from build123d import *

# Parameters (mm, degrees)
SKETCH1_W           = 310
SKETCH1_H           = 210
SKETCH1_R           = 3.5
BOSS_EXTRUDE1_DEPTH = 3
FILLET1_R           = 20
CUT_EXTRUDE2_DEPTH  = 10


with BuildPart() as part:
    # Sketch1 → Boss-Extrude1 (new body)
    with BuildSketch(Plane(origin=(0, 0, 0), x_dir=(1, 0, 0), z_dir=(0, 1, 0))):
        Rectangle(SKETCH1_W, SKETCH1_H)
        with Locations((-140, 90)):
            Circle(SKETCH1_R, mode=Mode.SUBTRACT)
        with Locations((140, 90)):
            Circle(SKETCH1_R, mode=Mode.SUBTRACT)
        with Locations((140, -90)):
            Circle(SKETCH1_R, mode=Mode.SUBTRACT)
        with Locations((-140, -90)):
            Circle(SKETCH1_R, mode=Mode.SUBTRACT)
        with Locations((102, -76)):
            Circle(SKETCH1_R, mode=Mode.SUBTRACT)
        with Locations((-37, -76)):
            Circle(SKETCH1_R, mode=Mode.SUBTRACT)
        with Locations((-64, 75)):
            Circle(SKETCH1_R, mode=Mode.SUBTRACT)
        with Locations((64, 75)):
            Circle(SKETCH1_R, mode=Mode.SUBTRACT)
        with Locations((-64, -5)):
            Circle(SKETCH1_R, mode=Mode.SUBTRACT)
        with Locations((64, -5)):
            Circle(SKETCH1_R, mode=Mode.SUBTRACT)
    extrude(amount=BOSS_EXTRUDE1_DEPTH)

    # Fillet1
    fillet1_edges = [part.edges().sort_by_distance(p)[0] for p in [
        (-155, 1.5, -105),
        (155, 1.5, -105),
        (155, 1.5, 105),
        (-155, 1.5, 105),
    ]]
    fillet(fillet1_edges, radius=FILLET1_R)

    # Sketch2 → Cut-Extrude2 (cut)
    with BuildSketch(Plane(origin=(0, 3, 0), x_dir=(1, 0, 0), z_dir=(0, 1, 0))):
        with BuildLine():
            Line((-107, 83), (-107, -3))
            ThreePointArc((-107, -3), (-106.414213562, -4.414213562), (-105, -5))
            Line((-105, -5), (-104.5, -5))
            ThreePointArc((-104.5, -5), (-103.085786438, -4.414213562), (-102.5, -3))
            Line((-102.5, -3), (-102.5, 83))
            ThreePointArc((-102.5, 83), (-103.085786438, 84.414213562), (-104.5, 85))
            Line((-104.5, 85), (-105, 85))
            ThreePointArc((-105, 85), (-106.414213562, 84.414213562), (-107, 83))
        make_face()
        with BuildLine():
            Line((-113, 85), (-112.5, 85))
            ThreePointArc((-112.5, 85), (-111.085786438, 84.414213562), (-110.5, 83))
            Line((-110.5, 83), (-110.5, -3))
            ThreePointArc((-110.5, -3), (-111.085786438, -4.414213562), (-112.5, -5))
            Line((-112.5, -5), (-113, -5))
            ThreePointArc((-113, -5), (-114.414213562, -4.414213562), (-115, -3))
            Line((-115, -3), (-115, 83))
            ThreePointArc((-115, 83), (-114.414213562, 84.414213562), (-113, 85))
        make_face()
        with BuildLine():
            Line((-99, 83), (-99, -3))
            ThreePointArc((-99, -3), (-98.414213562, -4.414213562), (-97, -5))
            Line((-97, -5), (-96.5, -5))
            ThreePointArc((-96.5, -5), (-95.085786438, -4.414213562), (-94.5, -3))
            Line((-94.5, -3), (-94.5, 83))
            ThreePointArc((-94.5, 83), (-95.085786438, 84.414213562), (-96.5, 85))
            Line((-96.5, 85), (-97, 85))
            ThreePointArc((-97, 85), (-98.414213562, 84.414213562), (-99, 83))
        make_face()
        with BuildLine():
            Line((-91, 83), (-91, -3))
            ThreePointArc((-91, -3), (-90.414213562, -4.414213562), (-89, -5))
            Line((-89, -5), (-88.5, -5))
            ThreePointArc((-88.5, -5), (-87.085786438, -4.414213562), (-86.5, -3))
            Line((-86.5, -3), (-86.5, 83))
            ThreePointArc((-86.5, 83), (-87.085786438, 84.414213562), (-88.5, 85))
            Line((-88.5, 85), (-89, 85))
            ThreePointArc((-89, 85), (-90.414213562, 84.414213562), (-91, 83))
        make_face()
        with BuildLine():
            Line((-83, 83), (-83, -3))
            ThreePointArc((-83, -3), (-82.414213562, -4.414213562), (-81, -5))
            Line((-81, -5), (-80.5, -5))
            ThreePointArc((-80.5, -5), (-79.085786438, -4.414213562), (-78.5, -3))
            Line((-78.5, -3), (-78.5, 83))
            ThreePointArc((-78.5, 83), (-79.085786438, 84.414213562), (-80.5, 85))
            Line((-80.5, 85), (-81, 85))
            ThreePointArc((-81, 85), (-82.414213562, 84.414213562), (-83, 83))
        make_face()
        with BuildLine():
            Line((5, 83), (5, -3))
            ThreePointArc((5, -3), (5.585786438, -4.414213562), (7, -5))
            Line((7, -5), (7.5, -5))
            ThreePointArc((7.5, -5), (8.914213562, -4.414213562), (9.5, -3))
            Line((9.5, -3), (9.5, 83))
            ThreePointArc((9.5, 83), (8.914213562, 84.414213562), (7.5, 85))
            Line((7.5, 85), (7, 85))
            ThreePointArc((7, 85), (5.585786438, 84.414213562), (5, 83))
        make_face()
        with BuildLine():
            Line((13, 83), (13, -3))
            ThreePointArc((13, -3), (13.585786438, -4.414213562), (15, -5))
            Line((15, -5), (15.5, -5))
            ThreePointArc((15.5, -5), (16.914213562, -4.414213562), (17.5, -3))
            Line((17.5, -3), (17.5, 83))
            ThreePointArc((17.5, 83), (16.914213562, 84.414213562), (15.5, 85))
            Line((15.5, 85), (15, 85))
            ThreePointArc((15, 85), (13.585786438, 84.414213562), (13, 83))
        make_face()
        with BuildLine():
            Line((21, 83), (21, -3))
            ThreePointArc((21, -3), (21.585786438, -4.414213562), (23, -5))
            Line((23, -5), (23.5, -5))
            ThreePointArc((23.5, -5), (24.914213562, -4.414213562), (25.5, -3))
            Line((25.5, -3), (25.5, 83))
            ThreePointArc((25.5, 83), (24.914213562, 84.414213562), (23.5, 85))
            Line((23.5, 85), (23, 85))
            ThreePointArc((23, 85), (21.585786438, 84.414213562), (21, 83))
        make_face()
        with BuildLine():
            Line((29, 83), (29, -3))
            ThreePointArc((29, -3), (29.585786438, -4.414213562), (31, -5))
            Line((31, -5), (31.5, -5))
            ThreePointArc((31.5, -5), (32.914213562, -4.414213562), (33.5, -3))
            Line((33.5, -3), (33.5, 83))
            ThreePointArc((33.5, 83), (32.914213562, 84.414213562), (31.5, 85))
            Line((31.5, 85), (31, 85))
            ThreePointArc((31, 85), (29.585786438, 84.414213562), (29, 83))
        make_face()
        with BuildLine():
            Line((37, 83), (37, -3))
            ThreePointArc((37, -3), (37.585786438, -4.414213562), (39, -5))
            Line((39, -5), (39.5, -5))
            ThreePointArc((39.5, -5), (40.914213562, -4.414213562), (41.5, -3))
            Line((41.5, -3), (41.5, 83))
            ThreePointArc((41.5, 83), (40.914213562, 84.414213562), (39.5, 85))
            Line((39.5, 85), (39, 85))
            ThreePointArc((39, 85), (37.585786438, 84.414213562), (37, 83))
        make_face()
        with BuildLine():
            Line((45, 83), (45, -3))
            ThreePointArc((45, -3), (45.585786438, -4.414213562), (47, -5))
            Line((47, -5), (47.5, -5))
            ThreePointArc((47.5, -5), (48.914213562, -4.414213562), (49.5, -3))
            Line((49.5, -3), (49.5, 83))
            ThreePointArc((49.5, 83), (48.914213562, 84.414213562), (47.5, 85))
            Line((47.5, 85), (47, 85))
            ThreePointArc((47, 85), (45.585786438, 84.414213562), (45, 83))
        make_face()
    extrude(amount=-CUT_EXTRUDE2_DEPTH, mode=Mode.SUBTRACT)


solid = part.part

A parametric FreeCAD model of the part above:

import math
import FreeCAD as App
import Part
import Sketcher
from FreeCAD import Vector
Q = App.Units.Quantity


def edges_at(feature, points):
    """Names of the edges that pass closest to the given points."""
    edges = feature.Shape.Edges
    near = lambda p: min(range(len(edges)), key=lambda i: edges[i].distToShape(Part.Vertex(*p))[0])
    return sorted({f"Edge{near(p) + 1}" for p in points})


def add_polygon(sketch, points):
    """Adds a closed chain of lines whose ends are joined by coincident constraints."""
    first, n = sketch.GeometryCount, len(points)
    for a, b in zip(points, points[1:] + points[:1]):
        sketch.addGeometry(Part.LineSegment(App.Vector(*a, 0), App.Vector(*b, 0)), False)
    for i in range(n):
        sketch.addConstraint(Sketcher.Constraint("Coincident", first + i, 2, first + (i + 1) % n, 1))

doc = App.newDocument("Part")
body = doc.addObject("PartDesign::Body", "Body")

# Sketch on XZ plane
sketch1 = doc.addObject("Sketcher::SketchObject", "Sketch")
body.addObject(sketch1)
sketch1.AttachmentSupport = (doc.XZ_Plane, [""])
sketch1.MapMode = "FlatFace"
add_polygon(sketch1, [(-155, -105), (-155, 105), (155, 105), (155, -105)])  # lines 0-3
sketch1.addGeometry(Part.Circle(Vector(-140, 90, 0), Vector(0, 0, 1), 3.5), False)  # 4
sketch1.addGeometry(Part.Circle(Vector(-37, 76, 0), Vector(0, 0, 1), 3.5), False)  # 5
sketch1.addGeometry(Part.Circle(Vector(-64, 5, 0), Vector(0, 0, 1), 3.5), False)  # 6
sketch1.addGeometry(Part.Circle(Vector(102, 76, 0), Vector(0, 0, 1), 3.5), False)  # 7
sketch1.addGeometry(Part.Circle(Vector(140, 90, 0), Vector(0, 0, 1), 3.5), False)  # 8
sketch1.addGeometry(Part.Circle(Vector(64, 5, 0), Vector(0, 0, 1), 3.5), False)  # 9
sketch1.addGeometry(Part.Circle(Vector(-140, -90, 0), Vector(0, 0, 1), 3.5), False)  # 10
sketch1.addGeometry(Part.Circle(Vector(-64, -75, 0), Vector(0, 0, 1), 3.5), False)  # 11
sketch1.addGeometry(Part.Circle(Vector(64, -75, 0), Vector(0, 0, 1), 3.5), False)  # 12
sketch1.addGeometry(Part.Circle(Vector(140, -90, 0), Vector(0, 0, 1), 3.5), False)  # 13
sketch1.addConstraint(Sketcher.Constraint("Vertical", 0))
sketch1.addConstraint(Sketcher.Constraint("Horizontal", 1))
sketch1.addConstraint(Sketcher.Constraint("Vertical", 2))
sketch1.addConstraint(Sketcher.Constraint("Horizontal", 3))
sketch1.addConstraint(Sketcher.Constraint("Equal", 4, 5))
sketch1.addConstraint(Sketcher.Constraint("Equal", 5, 6))
sketch1.addConstraint(Sketcher.Constraint("Equal", 6, 7))
sketch1.addConstraint(Sketcher.Constraint("Equal", 7, 8))
sketch1.addConstraint(Sketcher.Constraint("Equal", 8, 9))
sketch1.addConstraint(Sketcher.Constraint("Equal", 9, 10))
sketch1.addConstraint(Sketcher.Constraint("Equal", 10, 11))
sketch1.addConstraint(Sketcher.Constraint("Equal", 11, 12))
sketch1.addConstraint(Sketcher.Constraint("Equal", 12, 13))
sketch1.addConstraint(Sketcher.Constraint("Symmetric", 8, 3, 10, 3, -1, 1))
sketch1.addConstraint(Sketcher.Constraint("Symmetric", 4, 3, 13, 3, -1, 1))
sketch1.addConstraint(Sketcher.Constraint("Symmetric", 0, 2, 2, 2, -1, 1))
sketch1.addConstraint(Sketcher.Constraint("Symmetric", 4, 3, 8, 3, -2))
sketch1.addConstraint(Sketcher.Constraint("Symmetric", 6, 3, 9, 3, -2))
sketch1.addConstraint(Sketcher.Constraint("Symmetric", 11, 3, 12, 3, -2))
sketch1.addConstraint(Sketcher.Constraint("Horizontal", 5, 3, 7, 3))
sketch1.addConstraint(Sketcher.Constraint("Vertical", 6, 3, 11, 3))
sketch1.addConstraint(Sketcher.Constraint("Diameter", 4, Q("7 mm")))
sketch1.addConstraint(Sketcher.Constraint("DistanceX", 1, 1, 1, 2, Q("310 mm")))
sketch1.addConstraint(Sketcher.Constraint("DistanceY", 0, 1, 0, 2, Q("210 mm")))
sketch1.addConstraint(Sketcher.Constraint("DistanceX", 4, 3, -1, 1, Q("140 mm")))
sketch1.addConstraint(Sketcher.Constraint("DistanceY", -1, 1, 4, 3, Q("90 mm")))
sketch1.addConstraint(Sketcher.Constraint("DistanceX", 5, 3, -1, 1, Q("37 mm")))
sketch1.addConstraint(Sketcher.Constraint("DistanceY", -1, 1, 5, 3, Q("76 mm")))
sketch1.addConstraint(Sketcher.Constraint("DistanceX", 6, 3, -1, 1, Q("64 mm")))
sketch1.addConstraint(Sketcher.Constraint("DistanceY", -1, 1, 6, 3, Q("5 mm")))
sketch1.addConstraint(Sketcher.Constraint("DistanceX", -1, 1, 7, 3, Q("102 mm")))
sketch1.addConstraint(Sketcher.Constraint("DistanceY", 11, 3, -1, 1, Q("75 mm")))
pad1 = doc.addObject("PartDesign::Pad", "Pad")
body.addObject(pad1)
pad1.Profile = sketch1
pad1.Length = 3
pad1.Reversed = True
doc.recompute()

fillet = doc.addObject("PartDesign::Fillet", "Fillet")
body.addObject(fillet)
fillet.Base = (pad1, edges_at(pad1, [
    (-155, 1.5, -105),
    (155, 1.5, -105),
    (155, 1.5, 105),
    (-155, 1.5, 105),
]))
fillet.Radius = 20

# Sketch on XZ plane
sketch2 = doc.addObject("Sketcher::SketchObject", "Sketch001")
body.addObject(sketch2)
sketch2.AttachmentSupport = (doc.XZ_Plane, [""])
sketch2.MapMode = "FlatFace"
sketch2.AttachmentOffset = App.Placement(Vector(0, 0, -3), App.Rotation())
sketch2.addGeometry(Part.LineSegment(Vector(-107, -83, 0), Vector(-107, 3, 0)), False)
sketch2.addGeometry(Part.ArcOfCircle(Part.Circle(Vector(-105, 3, 0), Vector(0, 0, 1), 2), math.radians(90), math.radians(180)), False)
sketch2.addGeometry(Part.LineSegment(Vector(-105, 5, 0), Vector(-104.5, 5, 0)), False)
sketch2.addGeometry(Part.ArcOfCircle(Part.Circle(Vector(-104.5, 3, 0), Vector(0, 0, 1), 2), math.radians(0), math.radians(90)), False)
sketch2.addGeometry(Part.LineSegment(Vector(-102.5, 3, 0), Vector(-102.5, -83, 0)), False)
sketch2.addGeometry(Part.ArcOfCircle(Part.Circle(Vector(-104.5, -83, 0), Vector(0, 0, 1), 2), math.radians(-90), math.radians(0)), False)
sketch2.addGeometry(Part.LineSegment(Vector(-104.5, -85, 0), Vector(-105, -85, 0)), False)
sketch2.addGeometry(Part.ArcOfCircle(Part.Circle(Vector(-105, -83, 0), Vector(0, 0, 1), 2), math.radians(-180), math.radians(-90)), False)
sketch2.addGeometry(Part.LineSegment(Vector(-112.5, -85, 0), Vector(-113, -85, 0)), False)
sketch2.addGeometry(Part.ArcOfCircle(Part.Circle(Vector(-113, -83, 0), Vector(0, 0, 1), 2), math.radians(-180), math.radians(-90)), False)
sketch2.addGeometry(Part.LineSegment(Vector(-115, -83, 0), Vector(-115, 3, 0)), False)
sketch2.addGeometry(Part.ArcOfCircle(Part.Circle(Vector(-113, 3, 0), Vector(0, 0, 1), 2), math.radians(90), math.radians(180)), False)
sketch2.addGeometry(Part.LineSegment(Vector(-113, 5, 0), Vector(-112.5, 5, 0)), False)
sketch2.addGeometry(Part.ArcOfCircle(Part.Circle(Vector(-112.5, 3, 0), Vector(0, 0, 1), 2), math.radians(0), math.radians(90)), False)
sketch2.addGeometry(Part.LineSegment(Vector(-110.5, 3, 0), Vector(-110.5, -83, 0)), False)
sketch2.addGeometry(Part.ArcOfCircle(Part.Circle(Vector(-112.5, -83, 0), Vector(0, 0, 1), 2), math.radians(-90), math.radians(0)), False)
sketch2.addGeometry(Part.LineSegment(Vector(-99, -83, 0), Vector(-99, 3, 0)), False)
sketch2.addGeometry(Part.ArcOfCircle(Part.Circle(Vector(-97, 3, 0), Vector(0, 0, 1), 2), math.radians(90), math.radians(180)), False)
sketch2.addGeometry(Part.LineSegment(Vector(-97, 5, 0), Vector(-96.5, 5, 0)), False)
sketch2.addGeometry(Part.ArcOfCircle(Part.Circle(Vector(-96.5, 3, 0), Vector(0, 0, 1), 2), math.radians(0), math.radians(90)), False)
sketch2.addGeometry(Part.LineSegment(Vector(-94.5, 3, 0), Vector(-94.5, -83, 0)), False)
sketch2.addGeometry(Part.ArcOfCircle(Part.Circle(Vector(-96.5, -83, 0), Vector(0, 0, 1), 2), math.radians(-90), math.radians(0)), False)
sketch2.addGeometry(Part.LineSegment(Vector(-96.5, -85, 0), Vector(-97, -85, 0)), False)
sketch2.addGeometry(Part.ArcOfCircle(Part.Circle(Vector(-97, -83, 0), Vector(0, 0, 1), 2), math.radians(-180), math.radians(-90)), False)
sketch2.addGeometry(Part.LineSegment(Vector(-91, -83, 0), Vector(-91, 3, 0)), False)
sketch2.addGeometry(Part.ArcOfCircle(Part.Circle(Vector(-89, 3, 0), Vector(0, 0, 1), 2), math.radians(90), math.radians(180)), False)
sketch2.addGeometry(Part.LineSegment(Vector(-89, 5, 0), Vector(-88.5, 5, 0)), False)
sketch2.addGeometry(Part.ArcOfCircle(Part.Circle(Vector(-88.5, 3, 0), Vector(0, 0, 1), 2), math.radians(0), math.radians(90)), False)
sketch2.addGeometry(Part.LineSegment(Vector(-86.5, 3, 0), Vector(-86.5, -83, 0)), False)
sketch2.addGeometry(Part.ArcOfCircle(Part.Circle(Vector(-88.5, -83, 0), Vector(0, 0, 1), 2), math.radians(-90), math.radians(0)), False)
sketch2.addGeometry(Part.LineSegment(Vector(-88.5, -85, 0), Vector(-89, -85, 0)), False)
sketch2.addGeometry(Part.ArcOfCircle(Part.Circle(Vector(-89, -83, 0), Vector(0, 0, 1), 2), math.radians(-180), math.radians(-90)), False)
sketch2.addGeometry(Part.LineSegment(Vector(-83, -83, 0), Vector(-83, 3, 0)), False)
sketch2.addGeometry(Part.ArcOfCircle(Part.Circle(Vector(-81, 3, 0), Vector(0, 0, 1), 2), math.radians(90), math.radians(180)), False)
sketch2.addGeometry(Part.LineSegment(Vector(-81, 5, 0), Vector(-80.5, 5, 0)), False)
sketch2.addGeometry(Part.ArcOfCircle(Part.Circle(Vector(-80.5, 3, 0), Vector(0, 0, 1), 2), math.radians(0), math.radians(90)), False)
sketch2.addGeometry(Part.LineSegment(Vector(-78.5, 3, 0), Vector(-78.5, -83, 0)), False)
sketch2.addGeometry(Part.ArcOfCircle(Part.Circle(Vector(-80.5, -83, 0), Vector(0, 0, 1), 2), math.radians(-90), math.radians(0)), False)
sketch2.addGeometry(Part.LineSegment(Vector(-80.5, -85, 0), Vector(-81, -85, 0)), False)
sketch2.addGeometry(Part.ArcOfCircle(Part.Circle(Vector(-81, -83, 0), Vector(0, 0, 1), 2), math.radians(-180), math.radians(-90)), False)
sketch2.addGeometry(Part.LineSegment(Vector(5, -83, 0), Vector(5, 3, 0)), False)
sketch2.addGeometry(Part.ArcOfCircle(Part.Circle(Vector(7, 3, 0), Vector(0, 0, 1), 2), math.radians(90), math.radians(180)), False)
sketch2.addGeometry(Part.LineSegment(Vector(7, 5, 0), Vector(7.5, 5, 0)), False)
sketch2.addGeometry(Part.ArcOfCircle(Part.Circle(Vector(7.5, 3, 0), Vector(0, 0, 1), 2), math.radians(0), math.radians(90)), False)
sketch2.addGeometry(Part.LineSegment(Vector(9.5, 3, 0), Vector(9.5, -83, 0)), False)
sketch2.addGeometry(Part.ArcOfCircle(Part.Circle(Vector(7.5, -83, 0), Vector(0, 0, 1), 2), math.radians(-90), math.radians(0)), False)
sketch2.addGeometry(Part.LineSegment(Vector(7.5, -85, 0), Vector(7, -85, 0)), False)
sketch2.addGeometry(Part.ArcOfCircle(Part.Circle(Vector(7, -83, 0), Vector(0, 0, 1), 2), math.radians(-180), math.radians(-90)), False)
sketch2.addGeometry(Part.LineSegment(Vector(13, -83, 0), Vector(13, 3, 0)), False)
sketch2.addGeometry(Part.ArcOfCircle(Part.Circle(Vector(15, 3, 0), Vector(0, 0, 1), 2), math.radians(90), math.radians(180)), False)
sketch2.addGeometry(Part.LineSegment(Vector(15, 5, 0), Vector(15.5, 5, 0)), False)
sketch2.addGeometry(Part.ArcOfCircle(Part.Circle(Vector(15.5, 3, 0), Vector(0, 0, 1), 2), math.radians(0), math.radians(90)), False)
sketch2.addGeometry(Part.LineSegment(Vector(17.5, 3, 0), Vector(17.5, -83, 0)), False)
sketch2.addGeometry(Part.ArcOfCircle(Part.Circle(Vector(15.5, -83, 0), Vector(0, 0, 1), 2), math.radians(-90), math.radians(0)), False)
sketch2.addGeometry(Part.LineSegment(Vector(15.5, -85, 0), Vector(15, -85, 0)), False)
sketch2.addGeometry(Part.ArcOfCircle(Part.Circle(Vector(15, -83, 0), Vector(0, 0, 1), 2), math.radians(-180), math.radians(-90)), False)
sketch2.addGeometry(Part.LineSegment(Vector(21, -83, 0), Vector(21, 3, 0)), False)
sketch2.addGeometry(Part.ArcOfCircle(Part.Circle(Vector(23, 3, 0), Vector(0, 0, 1), 2), math.radians(90), math.radians(180)), False)
sketch2.addGeometry(Part.LineSegment(Vector(23, 5, 0), Vector(23.5, 5, 0)), False)
sketch2.addGeometry(Part.ArcOfCircle(Part.Circle(Vector(23.5, 3, 0), Vector(0, 0, 1), 2), math.radians(0), math.radians(90)), False)
sketch2.addGeometry(Part.LineSegment(Vector(25.5, 3, 0), Vector(25.5, -83, 0)), False)
sketch2.addGeometry(Part.ArcOfCircle(Part.Circle(Vector(23.5, -83, 0), Vector(0, 0, 1), 2), math.radians(-90), math.radians(0)), False)
sketch2.addGeometry(Part.LineSegment(Vector(23.5, -85, 0), Vector(23, -85, 0)), False)
sketch2.addGeometry(Part.ArcOfCircle(Part.Circle(Vector(23, -83, 0), Vector(0, 0, 1), 2), math.radians(-180), math.radians(-90)), False)
sketch2.addGeometry(Part.LineSegment(Vector(29, -83, 0), Vector(29, 3, 0)), False)
sketch2.addGeometry(Part.ArcOfCircle(Part.Circle(Vector(31, 3, 0), Vector(0, 0, 1), 2), math.radians(90), math.radians(180)), False)
sketch2.addGeometry(Part.LineSegment(Vector(31, 5, 0), Vector(31.5, 5, 0)), False)
sketch2.addGeometry(Part.ArcOfCircle(Part.Circle(Vector(31.5, 3, 0), Vector(0, 0, 1), 2), math.radians(0), math.radians(90)), False)
sketch2.addGeometry(Part.LineSegment(Vector(33.5, 3, 0), Vector(33.5, -83, 0)), False)
sketch2.addGeometry(Part.ArcOfCircle(Part.Circle(Vector(31.5, -83, 0), Vector(0, 0, 1), 2), math.radians(-90), math.radians(0)), False)
sketch2.addGeometry(Part.LineSegment(Vector(31.5, -85, 0), Vector(31, -85, 0)), False)
sketch2.addGeometry(Part.ArcOfCircle(Part.Circle(Vector(31, -83, 0), Vector(0, 0, 1), 2), math.radians(-180), math.radians(-90)), False)
sketch2.addGeometry(Part.LineSegment(Vector(37, -83, 0), Vector(37, 3, 0)), False)
sketch2.addGeometry(Part.ArcOfCircle(Part.Circle(Vector(39, 3, 0), Vector(0, 0, 1), 2), math.radians(90), math.radians(180)), False)
sketch2.addGeometry(Part.LineSegment(Vector(39, 5, 0), Vector(39.5, 5, 0)), False)
sketch2.addGeometry(Part.ArcOfCircle(Part.Circle(Vector(39.5, 3, 0), Vector(0, 0, 1), 2), math.radians(0), math.radians(90)), False)
sketch2.addGeometry(Part.LineSegment(Vector(41.5, 3, 0), Vector(41.5, -83, 0)), False)
sketch2.addGeometry(Part.ArcOfCircle(Part.Circle(Vector(39.5, -83, 0), Vector(0, 0, 1), 2), math.radians(-90), math.radians(0)), False)
sketch2.addGeometry(Part.LineSegment(Vector(39.5, -85, 0), Vector(39, -85, 0)), False)
sketch2.addGeometry(Part.ArcOfCircle(Part.Circle(Vector(39, -83, 0), Vector(0, 0, 1), 2), math.radians(-180), math.radians(-90)), False)
sketch2.addGeometry(Part.LineSegment(Vector(45, -83, 0), Vector(45, 3, 0)), False)
sketch2.addGeometry(Part.ArcOfCircle(Part.Circle(Vector(47, 3, 0), Vector(0, 0, 1), 2), math.radians(90), math.radians(180)), False)
sketch2.addGeometry(Part.LineSegment(Vector(47, 5, 0), Vector(47.5, 5, 0)), False)
sketch2.addGeometry(Part.ArcOfCircle(Part.Circle(Vector(47.5, 3, 0), Vector(0, 0, 1), 2), math.radians(0), math.radians(90)), False)
sketch2.addGeometry(Part.LineSegment(Vector(49.5, 3, 0), Vector(49.5, -83, 0)), False)
sketch2.addGeometry(Part.ArcOfCircle(Part.Circle(Vector(47.5, -83, 0), Vector(0, 0, 1), 2), math.radians(-90), math.radians(0)), False)
sketch2.addGeometry(Part.LineSegment(Vector(47.5, -85, 0), Vector(47, -85, 0)), False)
sketch2.addGeometry(Part.ArcOfCircle(Part.Circle(Vector(47, -83, 0), Vector(0, 0, 1), 2), math.radians(-180), math.radians(-90)), False)
sketch2.addConstraint(Sketcher.Constraint("Tangent", 0, 2, 1, 2))
sketch2.addConstraint(Sketcher.Constraint("Tangent", 1, 1, 2, 1))
sketch2.addConstraint(Sketcher.Constraint("Tangent", 2, 2, 3, 2))
sketch2.addConstraint(Sketcher.Constraint("Tangent", 3, 1, 4, 1))
sketch2.addConstraint(Sketcher.Constraint("Tangent", 4, 2, 5, 2))
sketch2.addConstraint(Sketcher.Constraint("Tangent", 5, 1, 6, 1))
sketch2.addConstraint(Sketcher.Constraint("Tangent", 6, 2, 7, 2))
sketch2.addConstraint(Sketcher.Constraint("Tangent", 7, 1, 0, 1))
sketch2.addConstraint(Sketcher.Constraint("Tangent", 8, 2, 9, 2))
sketch2.addConstraint(Sketcher.Constraint("Tangent", 9, 1, 10, 1))
sketch2.addConstraint(Sketcher.Constraint("Tangent", 10, 2, 11, 2))
sketch2.addConstraint(Sketcher.Constraint("Tangent", 11, 1, 12, 1))
sketch2.addConstraint(Sketcher.Constraint("Tangent", 12, 2, 13, 2))
sketch2.addConstraint(Sketcher.Constraint("Tangent", 13, 1, 14, 1))
sketch2.addConstraint(Sketcher.Constraint("Tangent", 14, 2, 15, 2))
sketch2.addConstraint(Sketcher.Constraint("Tangent", 15, 1, 8, 1))
sketch2.addConstraint(Sketcher.Constraint("Tangent", 16, 2, 17, 2))
sketch2.addConstraint(Sketcher.Constraint("Tangent", 17, 1, 18, 1))
sketch2.addConstraint(Sketcher.Constraint("Tangent", 18, 2, 19, 2))
sketch2.addConstraint(Sketcher.Constraint("Tangent", 19, 1, 20, 1))
sketch2.addConstraint(Sketcher.Constraint("Tangent", 20, 2, 21, 2))
sketch2.addConstraint(Sketcher.Constraint("Tangent", 21, 1, 22, 1))
sketch2.addConstraint(Sketcher.Constraint("Tangent", 22, 2, 23, 2))
sketch2.addConstraint(Sketcher.Constraint("Tangent", 23, 1, 16, 1))
sketch2.addConstraint(Sketcher.Constraint("Tangent", 24, 2, 25, 2))
sketch2.addConstraint(Sketcher.Constraint("Tangent", 25, 1, 26, 1))
sketch2.addConstraint(Sketcher.Constraint("Tangent", 26, 2, 27, 2))
sketch2.addConstraint(Sketcher.Constraint("Tangent", 27, 1, 28, 1))
sketch2.addConstraint(Sketcher.Constraint("Tangent", 28, 2, 29, 2))
sketch2.addConstraint(Sketcher.Constraint("Tangent", 29, 1, 30, 1))
sketch2.addConstraint(Sketcher.Constraint("Tangent", 30, 2, 31, 2))
sketch2.addConstraint(Sketcher.Constraint("Tangent", 31, 1, 24, 1))
sketch2.addConstraint(Sketcher.Constraint("Tangent", 32, 2, 33, 2))
sketch2.addConstraint(Sketcher.Constraint("Tangent", 33, 1, 34, 1))
sketch2.addConstraint(Sketcher.Constraint("Tangent", 34, 2, 35, 2))
sketch2.addConstraint(Sketcher.Constraint("Tangent", 35, 1, 36, 1))
sketch2.addConstraint(Sketcher.Constraint("Tangent", 36, 2, 37, 2))
sketch2.addConstraint(Sketcher.Constraint("Tangent", 37, 1, 38, 1))
sketch2.addConstraint(Sketcher.Constraint("Tangent", 38, 2, 39, 2))
sketch2.addConstraint(Sketcher.Constraint("Tangent", 39, 1, 32, 1))
sketch2.addConstraint(Sketcher.Constraint("Tangent", 40, 2, 41, 2))
sketch2.addConstraint(Sketcher.Constraint("Tangent", 41, 1, 42, 1))
sketch2.addConstraint(Sketcher.Constraint("Tangent", 42, 2, 43, 2))
sketch2.addConstraint(Sketcher.Constraint("Tangent", 43, 1, 44, 1))
sketch2.addConstraint(Sketcher.Constraint("Tangent", 44, 2, 45, 2))
sketch2.addConstraint(Sketcher.Constraint("Tangent", 45, 1, 46, 1))
sketch2.addConstraint(Sketcher.Constraint("Tangent", 46, 2, 47, 2))
sketch2.addConstraint(Sketcher.Constraint("Tangent", 47, 1, 40, 1))
sketch2.addConstraint(Sketcher.Constraint("Tangent", 48, 2, 49, 2))
sketch2.addConstraint(Sketcher.Constraint("Tangent", 49, 1, 50, 1))
sketch2.addConstraint(Sketcher.Constraint("Tangent", 50, 2, 51, 2))
sketch2.addConstraint(Sketcher.Constraint("Tangent", 51, 1, 52, 1))
sketch2.addConstraint(Sketcher.Constraint("Tangent", 52, 2, 53, 2))
sketch2.addConstraint(Sketcher.Constraint("Tangent", 53, 1, 54, 1))
sketch2.addConstraint(Sketcher.Constraint("Tangent", 54, 2, 55, 2))
sketch2.addConstraint(Sketcher.Constraint("Tangent", 55, 1, 48, 1))
sketch2.addConstraint(Sketcher.Constraint("Tangent", 56, 2, 57, 2))
sketch2.addConstraint(Sketcher.Constraint("Tangent", 57, 1, 58, 1))
sketch2.addConstraint(Sketcher.Constraint("Tangent", 58, 2, 59, 2))
sketch2.addConstraint(Sketcher.Constraint("Tangent", 59, 1, 60, 1))
sketch2.addConstraint(Sketcher.Constraint("Tangent", 60, 2, 61, 2))
sketch2.addConstraint(Sketcher.Constraint("Tangent", 61, 1, 62, 1))
sketch2.addConstraint(Sketcher.Constraint("Tangent", 62, 2, 63, 2))
sketch2.addConstraint(Sketcher.Constraint("Tangent", 63, 1, 56, 1))
sketch2.addConstraint(Sketcher.Constraint("Tangent", 64, 2, 65, 2))
sketch2.addConstraint(Sketcher.Constraint("Tangent", 65, 1, 66, 1))
sketch2.addConstraint(Sketcher.Constraint("Tangent", 66, 2, 67, 2))
sketch2.addConstraint(Sketcher.Constraint("Tangent", 67, 1, 68, 1))
sketch2.addConstraint(Sketcher.Constraint("Tangent", 68, 2, 69, 2))
sketch2.addConstraint(Sketcher.Constraint("Tangent", 69, 1, 70, 1))
sketch2.addConstraint(Sketcher.Constraint("Tangent", 70, 2, 71, 2))
sketch2.addConstraint(Sketcher.Constraint("Tangent", 71, 1, 64, 1))
sketch2.addConstraint(Sketcher.Constraint("Tangent", 72, 2, 73, 2))
sketch2.addConstraint(Sketcher.Constraint("Tangent", 73, 1, 74, 1))
sketch2.addConstraint(Sketcher.Constraint("Tangent", 74, 2, 75, 2))
sketch2.addConstraint(Sketcher.Constraint("Tangent", 75, 1, 76, 1))
sketch2.addConstraint(Sketcher.Constraint("Tangent", 76, 2, 77, 2))
sketch2.addConstraint(Sketcher.Constraint("Tangent", 77, 1, 78, 1))
sketch2.addConstraint(Sketcher.Constraint("Tangent", 78, 2, 79, 2))
sketch2.addConstraint(Sketcher.Constraint("Tangent", 79, 1, 72, 1))
sketch2.addConstraint(Sketcher.Constraint("Tangent", 80, 2, 81, 2))
sketch2.addConstraint(Sketcher.Constraint("Tangent", 81, 1, 82, 1))
sketch2.addConstraint(Sketcher.Constraint("Tangent", 82, 2, 83, 2))
sketch2.addConstraint(Sketcher.Constraint("Tangent", 83, 1, 84, 1))
sketch2.addConstraint(Sketcher.Constraint("Tangent", 84, 2, 85, 2))
sketch2.addConstraint(Sketcher.Constraint("Tangent", 85, 1, 86, 1))
sketch2.addConstraint(Sketcher.Constraint("Tangent", 86, 2, 87, 2))
sketch2.addConstraint(Sketcher.Constraint("Tangent", 87, 1, 80, 1))
sketch2.addConstraint(Sketcher.Constraint("Vertical", 0))
sketch2.addConstraint(Sketcher.Constraint("Horizontal", 2))
sketch2.addConstraint(Sketcher.Constraint("Vertical", 4))
sketch2.addConstraint(Sketcher.Constraint("Horizontal", 6))
sketch2.addConstraint(Sketcher.Constraint("Horizontal", 8))
sketch2.addConstraint(Sketcher.Constraint("Vertical", 10))
sketch2.addConstraint(Sketcher.Constraint("Horizontal", 12))
sketch2.addConstraint(Sketcher.Constraint("Vertical", 14))
sketch2.addConstraint(Sketcher.Constraint("Vertical", 16))
sketch2.addConstraint(Sketcher.Constraint("Horizontal", 18))
sketch2.addConstraint(Sketcher.Constraint("Vertical", 20))
sketch2.addConstraint(Sketcher.Constraint("Horizontal", 22))
sketch2.addConstraint(Sketcher.Constraint("Vertical", 24))
sketch2.addConstraint(Sketcher.Constraint("Horizontal", 26))
sketch2.addConstraint(Sketcher.Constraint("Vertical", 28))
sketch2.addConstraint(Sketcher.Constraint("Horizontal", 30))
sketch2.addConstraint(Sketcher.Constraint("Vertical", 32))
sketch2.addConstraint(Sketcher.Constraint("Horizontal", 34))
sketch2.addConstraint(Sketcher.Constraint("Vertical", 36))
sketch2.addConstraint(Sketcher.Constraint("Horizontal", 38))
sketch2.addConstraint(Sketcher.Constraint("Vertical", 40))
sketch2.addConstraint(Sketcher.Constraint("Horizontal", 42))
sketch2.addConstraint(Sketcher.Constraint("Vertical", 44))
sketch2.addConstraint(Sketcher.Constraint("Horizontal", 46))
sketch2.addConstraint(Sketcher.Constraint("Vertical", 48))
sketch2.addConstraint(Sketcher.Constraint("Horizontal", 50))
sketch2.addConstraint(Sketcher.Constraint("Vertical", 52))
sketch2.addConstraint(Sketcher.Constraint("Horizontal", 54))
sketch2.addConstraint(Sketcher.Constraint("Vertical", 56))
sketch2.addConstraint(Sketcher.Constraint("Horizontal", 58))
sketch2.addConstraint(Sketcher.Constraint("Vertical", 60))
sketch2.addConstraint(Sketcher.Constraint("Horizontal", 62))
sketch2.addConstraint(Sketcher.Constraint("Vertical", 64))
sketch2.addConstraint(Sketcher.Constraint("Horizontal", 66))
sketch2.addConstraint(Sketcher.Constraint("Vertical", 68))
sketch2.addConstraint(Sketcher.Constraint("Horizontal", 70))
sketch2.addConstraint(Sketcher.Constraint("Vertical", 72))
sketch2.addConstraint(Sketcher.Constraint("Horizontal", 74))
sketch2.addConstraint(Sketcher.Constraint("Vertical", 76))
sketch2.addConstraint(Sketcher.Constraint("Horizontal", 78))
sketch2.addConstraint(Sketcher.Constraint("Vertical", 80))
sketch2.addConstraint(Sketcher.Constraint("Horizontal", 82))
sketch2.addConstraint(Sketcher.Constraint("Vertical", 84))
sketch2.addConstraint(Sketcher.Constraint("Horizontal", 86))
sketch2.addConstraint(Sketcher.Constraint("Equal", 1, 3))
sketch2.addConstraint(Sketcher.Constraint("Equal", 3, 5))
sketch2.addConstraint(Sketcher.Constraint("Equal", 5, 7))
sketch2.addConstraint(Sketcher.Constraint("Equal", 7, 9))
sketch2.addConstraint(Sketcher.Constraint("Equal", 9, 11))
sketch2.addConstraint(Sketcher.Constraint("Equal", 11, 13))
sketch2.addConstraint(Sketcher.Constraint("Equal", 13, 15))
sketch2.addConstraint(Sketcher.Constraint("Equal", 15, 17))
sketch2.addConstraint(Sketcher.Constraint("Equal", 17, 19))
sketch2.addConstraint(Sketcher.Constraint("Equal", 19, 21))
sketch2.addConstraint(Sketcher.Constraint("Equal", 21, 23))
sketch2.addConstraint(Sketcher.Constraint("Equal", 23, 25))
sketch2.addConstraint(Sketcher.Constraint("Equal", 25, 27))
sketch2.addConstraint(Sketcher.Constraint("Equal", 27, 29))
sketch2.addConstraint(Sketcher.Constraint("Equal", 29, 31))
sketch2.addConstraint(Sketcher.Constraint("Equal", 31, 33))
sketch2.addConstraint(Sketcher.Constraint("Equal", 33, 35))
sketch2.addConstraint(Sketcher.Constraint("Equal", 35, 37))
sketch2.addConstraint(Sketcher.Constraint("Equal", 37, 39))
sketch2.addConstraint(Sketcher.Constraint("Equal", 39, 41))
sketch2.addConstraint(Sketcher.Constraint("Equal", 41, 43))
sketch2.addConstraint(Sketcher.Constraint("Equal", 43, 45))
sketch2.addConstraint(Sketcher.Constraint("Equal", 45, 47))
sketch2.addConstraint(Sketcher.Constraint("Equal", 47, 49))
sketch2.addConstraint(Sketcher.Constraint("Equal", 49, 51))
sketch2.addConstraint(Sketcher.Constraint("Equal", 51, 53))
sketch2.addConstraint(Sketcher.Constraint("Equal", 53, 55))
sketch2.addConstraint(Sketcher.Constraint("Equal", 55, 57))
sketch2.addConstraint(Sketcher.Constraint("Equal", 57, 59))
sketch2.addConstraint(Sketcher.Constraint("Equal", 59, 61))
sketch2.addConstraint(Sketcher.Constraint("Equal", 61, 63))
sketch2.addConstraint(Sketcher.Constraint("Equal", 63, 65))
sketch2.addConstraint(Sketcher.Constraint("Equal", 65, 67))
sketch2.addConstraint(Sketcher.Constraint("Equal", 67, 69))
sketch2.addConstraint(Sketcher.Constraint("Equal", 69, 71))
sketch2.addConstraint(Sketcher.Constraint("Equal", 71, 73))
sketch2.addConstraint(Sketcher.Constraint("Equal", 73, 75))
sketch2.addConstraint(Sketcher.Constraint("Equal", 75, 77))
sketch2.addConstraint(Sketcher.Constraint("Equal", 77, 79))
sketch2.addConstraint(Sketcher.Constraint("Equal", 79, 81))
sketch2.addConstraint(Sketcher.Constraint("Equal", 81, 83))
sketch2.addConstraint(Sketcher.Constraint("Equal", 83, 85))
sketch2.addConstraint(Sketcher.Constraint("Equal", 85, 87))
sketch2.addConstraint(Sketcher.Constraint("Horizontal", 7, 3, 9, 3))
sketch2.addConstraint(Sketcher.Constraint("Horizontal", 3, 3, 11, 3))
sketch2.addConstraint(Sketcher.Constraint("Horizontal", 13, 3, 17, 3))
sketch2.addConstraint(Sketcher.Constraint("Horizontal", 15, 3, 21, 3))
sketch2.addConstraint(Sketcher.Constraint("Horizontal", 19, 3, 25, 3))
sketch2.addConstraint(Sketcher.Constraint("Horizontal", 23, 3, 29, 3))
sketch2.addConstraint(Sketcher.Constraint("Horizontal", 27, 3, 33, 3))
sketch2.addConstraint(Sketcher.Constraint("Horizontal", 31, 3, 37, 3))
sketch2.addConstraint(Sketcher.Constraint("Horizontal", 35, 3, 41, 3))
sketch2.addConstraint(Sketcher.Constraint("Horizontal", 39, 3, 45, 3))
sketch2.addConstraint(Sketcher.Constraint("Horizontal", 43, 3, 49, 3))
sketch2.addConstraint(Sketcher.Constraint("Horizontal", 47, 3, 53, 3))
sketch2.addConstraint(Sketcher.Constraint("Horizontal", 51, 3, 57, 3))
sketch2.addConstraint(Sketcher.Constraint("Horizontal", 55, 3, 61, 3))
sketch2.addConstraint(Sketcher.Constraint("Horizontal", 59, 3, 65, 3))
sketch2.addConstraint(Sketcher.Constraint("Horizontal", 63, 3, 69, 3))
sketch2.addConstraint(Sketcher.Constraint("Horizontal", 67, 3, 73, 3))
sketch2.addConstraint(Sketcher.Constraint("Horizontal", 71, 3, 77, 3))
sketch2.addConstraint(Sketcher.Constraint("Horizontal", 75, 3, 81, 3))
sketch2.addConstraint(Sketcher.Constraint("Horizontal", 79, 3, 85, 3))
sketch2.addConstraint(Sketcher.Constraint("Equal", 6, 8))
sketch2.addConstraint(Sketcher.Constraint("Equal", 12, 18))
sketch2.addConstraint(Sketcher.Constraint("Equal", 22, 26))
sketch2.addConstraint(Sketcher.Constraint("Equal", 30, 34))
sketch2.addConstraint(Sketcher.Constraint("Equal", 38, 42))
sketch2.addConstraint(Sketcher.Constraint("Equal", 46, 50))
sketch2.addConstraint(Sketcher.Constraint("Equal", 54, 58))
sketch2.addConstraint(Sketcher.Constraint("Equal", 62, 66))
sketch2.addConstraint(Sketcher.Constraint("Equal", 70, 74))
sketch2.addConstraint(Sketcher.Constraint("Equal", 78, 82))
sketch2.addConstraint(Sketcher.Constraint("Radius", 1, Q("2 mm")))
sketch2.addConstraint(Sketcher.Constraint("DistanceY", 0, 1, 0, 2, Q("86 mm")))
sketch2.addConstraint(Sketcher.Constraint("DistanceX", 2, 1, 2, 2, Q("0.5 mm")))
sketch2.addConstraint(Sketcher.Constraint("DistanceX", 1, 3, -1, 1, Q("105 mm")))
sketch2.addConstraint(Sketcher.Constraint("DistanceY", -1, 1, 1, 3, Q("3 mm")))
sketch2.addConstraint(Sketcher.Constraint("DistanceX", 9, 3, -1, 1, Q("113 mm")))
sketch2.addConstraint(Sketcher.Constraint("DistanceX", 17, 3, -1, 1, Q("97 mm")))
sketch2.addConstraint(Sketcher.Constraint("DistanceX", 25, 3, -1, 1, Q("89 mm")))
sketch2.addConstraint(Sketcher.Constraint("DistanceX", 33, 3, -1, 1, Q("81 mm")))
sketch2.addConstraint(Sketcher.Constraint("DistanceX", -1, 1, 41, 3, Q("7 mm")))
sketch2.addConstraint(Sketcher.Constraint("DistanceX", -1, 1, 49, 3, Q("15 mm")))
sketch2.addConstraint(Sketcher.Constraint("DistanceX", -1, 1, 57, 3, Q("23 mm")))
sketch2.addConstraint(Sketcher.Constraint("DistanceX", -1, 1, 65, 3, Q("31 mm")))
sketch2.addConstraint(Sketcher.Constraint("DistanceX", -1, 1, 73, 3, Q("39 mm")))
sketch2.addConstraint(Sketcher.Constraint("DistanceX", -1, 1, 81, 3, Q("47 mm")))
pocket1 = doc.addObject("PartDesign::Pocket", "Pocket")
body.addObject(pocket1)
pocket1.Profile = sketch2
pocket1.Length = 10
pocket1.Reversed = True

doc.recompute()
